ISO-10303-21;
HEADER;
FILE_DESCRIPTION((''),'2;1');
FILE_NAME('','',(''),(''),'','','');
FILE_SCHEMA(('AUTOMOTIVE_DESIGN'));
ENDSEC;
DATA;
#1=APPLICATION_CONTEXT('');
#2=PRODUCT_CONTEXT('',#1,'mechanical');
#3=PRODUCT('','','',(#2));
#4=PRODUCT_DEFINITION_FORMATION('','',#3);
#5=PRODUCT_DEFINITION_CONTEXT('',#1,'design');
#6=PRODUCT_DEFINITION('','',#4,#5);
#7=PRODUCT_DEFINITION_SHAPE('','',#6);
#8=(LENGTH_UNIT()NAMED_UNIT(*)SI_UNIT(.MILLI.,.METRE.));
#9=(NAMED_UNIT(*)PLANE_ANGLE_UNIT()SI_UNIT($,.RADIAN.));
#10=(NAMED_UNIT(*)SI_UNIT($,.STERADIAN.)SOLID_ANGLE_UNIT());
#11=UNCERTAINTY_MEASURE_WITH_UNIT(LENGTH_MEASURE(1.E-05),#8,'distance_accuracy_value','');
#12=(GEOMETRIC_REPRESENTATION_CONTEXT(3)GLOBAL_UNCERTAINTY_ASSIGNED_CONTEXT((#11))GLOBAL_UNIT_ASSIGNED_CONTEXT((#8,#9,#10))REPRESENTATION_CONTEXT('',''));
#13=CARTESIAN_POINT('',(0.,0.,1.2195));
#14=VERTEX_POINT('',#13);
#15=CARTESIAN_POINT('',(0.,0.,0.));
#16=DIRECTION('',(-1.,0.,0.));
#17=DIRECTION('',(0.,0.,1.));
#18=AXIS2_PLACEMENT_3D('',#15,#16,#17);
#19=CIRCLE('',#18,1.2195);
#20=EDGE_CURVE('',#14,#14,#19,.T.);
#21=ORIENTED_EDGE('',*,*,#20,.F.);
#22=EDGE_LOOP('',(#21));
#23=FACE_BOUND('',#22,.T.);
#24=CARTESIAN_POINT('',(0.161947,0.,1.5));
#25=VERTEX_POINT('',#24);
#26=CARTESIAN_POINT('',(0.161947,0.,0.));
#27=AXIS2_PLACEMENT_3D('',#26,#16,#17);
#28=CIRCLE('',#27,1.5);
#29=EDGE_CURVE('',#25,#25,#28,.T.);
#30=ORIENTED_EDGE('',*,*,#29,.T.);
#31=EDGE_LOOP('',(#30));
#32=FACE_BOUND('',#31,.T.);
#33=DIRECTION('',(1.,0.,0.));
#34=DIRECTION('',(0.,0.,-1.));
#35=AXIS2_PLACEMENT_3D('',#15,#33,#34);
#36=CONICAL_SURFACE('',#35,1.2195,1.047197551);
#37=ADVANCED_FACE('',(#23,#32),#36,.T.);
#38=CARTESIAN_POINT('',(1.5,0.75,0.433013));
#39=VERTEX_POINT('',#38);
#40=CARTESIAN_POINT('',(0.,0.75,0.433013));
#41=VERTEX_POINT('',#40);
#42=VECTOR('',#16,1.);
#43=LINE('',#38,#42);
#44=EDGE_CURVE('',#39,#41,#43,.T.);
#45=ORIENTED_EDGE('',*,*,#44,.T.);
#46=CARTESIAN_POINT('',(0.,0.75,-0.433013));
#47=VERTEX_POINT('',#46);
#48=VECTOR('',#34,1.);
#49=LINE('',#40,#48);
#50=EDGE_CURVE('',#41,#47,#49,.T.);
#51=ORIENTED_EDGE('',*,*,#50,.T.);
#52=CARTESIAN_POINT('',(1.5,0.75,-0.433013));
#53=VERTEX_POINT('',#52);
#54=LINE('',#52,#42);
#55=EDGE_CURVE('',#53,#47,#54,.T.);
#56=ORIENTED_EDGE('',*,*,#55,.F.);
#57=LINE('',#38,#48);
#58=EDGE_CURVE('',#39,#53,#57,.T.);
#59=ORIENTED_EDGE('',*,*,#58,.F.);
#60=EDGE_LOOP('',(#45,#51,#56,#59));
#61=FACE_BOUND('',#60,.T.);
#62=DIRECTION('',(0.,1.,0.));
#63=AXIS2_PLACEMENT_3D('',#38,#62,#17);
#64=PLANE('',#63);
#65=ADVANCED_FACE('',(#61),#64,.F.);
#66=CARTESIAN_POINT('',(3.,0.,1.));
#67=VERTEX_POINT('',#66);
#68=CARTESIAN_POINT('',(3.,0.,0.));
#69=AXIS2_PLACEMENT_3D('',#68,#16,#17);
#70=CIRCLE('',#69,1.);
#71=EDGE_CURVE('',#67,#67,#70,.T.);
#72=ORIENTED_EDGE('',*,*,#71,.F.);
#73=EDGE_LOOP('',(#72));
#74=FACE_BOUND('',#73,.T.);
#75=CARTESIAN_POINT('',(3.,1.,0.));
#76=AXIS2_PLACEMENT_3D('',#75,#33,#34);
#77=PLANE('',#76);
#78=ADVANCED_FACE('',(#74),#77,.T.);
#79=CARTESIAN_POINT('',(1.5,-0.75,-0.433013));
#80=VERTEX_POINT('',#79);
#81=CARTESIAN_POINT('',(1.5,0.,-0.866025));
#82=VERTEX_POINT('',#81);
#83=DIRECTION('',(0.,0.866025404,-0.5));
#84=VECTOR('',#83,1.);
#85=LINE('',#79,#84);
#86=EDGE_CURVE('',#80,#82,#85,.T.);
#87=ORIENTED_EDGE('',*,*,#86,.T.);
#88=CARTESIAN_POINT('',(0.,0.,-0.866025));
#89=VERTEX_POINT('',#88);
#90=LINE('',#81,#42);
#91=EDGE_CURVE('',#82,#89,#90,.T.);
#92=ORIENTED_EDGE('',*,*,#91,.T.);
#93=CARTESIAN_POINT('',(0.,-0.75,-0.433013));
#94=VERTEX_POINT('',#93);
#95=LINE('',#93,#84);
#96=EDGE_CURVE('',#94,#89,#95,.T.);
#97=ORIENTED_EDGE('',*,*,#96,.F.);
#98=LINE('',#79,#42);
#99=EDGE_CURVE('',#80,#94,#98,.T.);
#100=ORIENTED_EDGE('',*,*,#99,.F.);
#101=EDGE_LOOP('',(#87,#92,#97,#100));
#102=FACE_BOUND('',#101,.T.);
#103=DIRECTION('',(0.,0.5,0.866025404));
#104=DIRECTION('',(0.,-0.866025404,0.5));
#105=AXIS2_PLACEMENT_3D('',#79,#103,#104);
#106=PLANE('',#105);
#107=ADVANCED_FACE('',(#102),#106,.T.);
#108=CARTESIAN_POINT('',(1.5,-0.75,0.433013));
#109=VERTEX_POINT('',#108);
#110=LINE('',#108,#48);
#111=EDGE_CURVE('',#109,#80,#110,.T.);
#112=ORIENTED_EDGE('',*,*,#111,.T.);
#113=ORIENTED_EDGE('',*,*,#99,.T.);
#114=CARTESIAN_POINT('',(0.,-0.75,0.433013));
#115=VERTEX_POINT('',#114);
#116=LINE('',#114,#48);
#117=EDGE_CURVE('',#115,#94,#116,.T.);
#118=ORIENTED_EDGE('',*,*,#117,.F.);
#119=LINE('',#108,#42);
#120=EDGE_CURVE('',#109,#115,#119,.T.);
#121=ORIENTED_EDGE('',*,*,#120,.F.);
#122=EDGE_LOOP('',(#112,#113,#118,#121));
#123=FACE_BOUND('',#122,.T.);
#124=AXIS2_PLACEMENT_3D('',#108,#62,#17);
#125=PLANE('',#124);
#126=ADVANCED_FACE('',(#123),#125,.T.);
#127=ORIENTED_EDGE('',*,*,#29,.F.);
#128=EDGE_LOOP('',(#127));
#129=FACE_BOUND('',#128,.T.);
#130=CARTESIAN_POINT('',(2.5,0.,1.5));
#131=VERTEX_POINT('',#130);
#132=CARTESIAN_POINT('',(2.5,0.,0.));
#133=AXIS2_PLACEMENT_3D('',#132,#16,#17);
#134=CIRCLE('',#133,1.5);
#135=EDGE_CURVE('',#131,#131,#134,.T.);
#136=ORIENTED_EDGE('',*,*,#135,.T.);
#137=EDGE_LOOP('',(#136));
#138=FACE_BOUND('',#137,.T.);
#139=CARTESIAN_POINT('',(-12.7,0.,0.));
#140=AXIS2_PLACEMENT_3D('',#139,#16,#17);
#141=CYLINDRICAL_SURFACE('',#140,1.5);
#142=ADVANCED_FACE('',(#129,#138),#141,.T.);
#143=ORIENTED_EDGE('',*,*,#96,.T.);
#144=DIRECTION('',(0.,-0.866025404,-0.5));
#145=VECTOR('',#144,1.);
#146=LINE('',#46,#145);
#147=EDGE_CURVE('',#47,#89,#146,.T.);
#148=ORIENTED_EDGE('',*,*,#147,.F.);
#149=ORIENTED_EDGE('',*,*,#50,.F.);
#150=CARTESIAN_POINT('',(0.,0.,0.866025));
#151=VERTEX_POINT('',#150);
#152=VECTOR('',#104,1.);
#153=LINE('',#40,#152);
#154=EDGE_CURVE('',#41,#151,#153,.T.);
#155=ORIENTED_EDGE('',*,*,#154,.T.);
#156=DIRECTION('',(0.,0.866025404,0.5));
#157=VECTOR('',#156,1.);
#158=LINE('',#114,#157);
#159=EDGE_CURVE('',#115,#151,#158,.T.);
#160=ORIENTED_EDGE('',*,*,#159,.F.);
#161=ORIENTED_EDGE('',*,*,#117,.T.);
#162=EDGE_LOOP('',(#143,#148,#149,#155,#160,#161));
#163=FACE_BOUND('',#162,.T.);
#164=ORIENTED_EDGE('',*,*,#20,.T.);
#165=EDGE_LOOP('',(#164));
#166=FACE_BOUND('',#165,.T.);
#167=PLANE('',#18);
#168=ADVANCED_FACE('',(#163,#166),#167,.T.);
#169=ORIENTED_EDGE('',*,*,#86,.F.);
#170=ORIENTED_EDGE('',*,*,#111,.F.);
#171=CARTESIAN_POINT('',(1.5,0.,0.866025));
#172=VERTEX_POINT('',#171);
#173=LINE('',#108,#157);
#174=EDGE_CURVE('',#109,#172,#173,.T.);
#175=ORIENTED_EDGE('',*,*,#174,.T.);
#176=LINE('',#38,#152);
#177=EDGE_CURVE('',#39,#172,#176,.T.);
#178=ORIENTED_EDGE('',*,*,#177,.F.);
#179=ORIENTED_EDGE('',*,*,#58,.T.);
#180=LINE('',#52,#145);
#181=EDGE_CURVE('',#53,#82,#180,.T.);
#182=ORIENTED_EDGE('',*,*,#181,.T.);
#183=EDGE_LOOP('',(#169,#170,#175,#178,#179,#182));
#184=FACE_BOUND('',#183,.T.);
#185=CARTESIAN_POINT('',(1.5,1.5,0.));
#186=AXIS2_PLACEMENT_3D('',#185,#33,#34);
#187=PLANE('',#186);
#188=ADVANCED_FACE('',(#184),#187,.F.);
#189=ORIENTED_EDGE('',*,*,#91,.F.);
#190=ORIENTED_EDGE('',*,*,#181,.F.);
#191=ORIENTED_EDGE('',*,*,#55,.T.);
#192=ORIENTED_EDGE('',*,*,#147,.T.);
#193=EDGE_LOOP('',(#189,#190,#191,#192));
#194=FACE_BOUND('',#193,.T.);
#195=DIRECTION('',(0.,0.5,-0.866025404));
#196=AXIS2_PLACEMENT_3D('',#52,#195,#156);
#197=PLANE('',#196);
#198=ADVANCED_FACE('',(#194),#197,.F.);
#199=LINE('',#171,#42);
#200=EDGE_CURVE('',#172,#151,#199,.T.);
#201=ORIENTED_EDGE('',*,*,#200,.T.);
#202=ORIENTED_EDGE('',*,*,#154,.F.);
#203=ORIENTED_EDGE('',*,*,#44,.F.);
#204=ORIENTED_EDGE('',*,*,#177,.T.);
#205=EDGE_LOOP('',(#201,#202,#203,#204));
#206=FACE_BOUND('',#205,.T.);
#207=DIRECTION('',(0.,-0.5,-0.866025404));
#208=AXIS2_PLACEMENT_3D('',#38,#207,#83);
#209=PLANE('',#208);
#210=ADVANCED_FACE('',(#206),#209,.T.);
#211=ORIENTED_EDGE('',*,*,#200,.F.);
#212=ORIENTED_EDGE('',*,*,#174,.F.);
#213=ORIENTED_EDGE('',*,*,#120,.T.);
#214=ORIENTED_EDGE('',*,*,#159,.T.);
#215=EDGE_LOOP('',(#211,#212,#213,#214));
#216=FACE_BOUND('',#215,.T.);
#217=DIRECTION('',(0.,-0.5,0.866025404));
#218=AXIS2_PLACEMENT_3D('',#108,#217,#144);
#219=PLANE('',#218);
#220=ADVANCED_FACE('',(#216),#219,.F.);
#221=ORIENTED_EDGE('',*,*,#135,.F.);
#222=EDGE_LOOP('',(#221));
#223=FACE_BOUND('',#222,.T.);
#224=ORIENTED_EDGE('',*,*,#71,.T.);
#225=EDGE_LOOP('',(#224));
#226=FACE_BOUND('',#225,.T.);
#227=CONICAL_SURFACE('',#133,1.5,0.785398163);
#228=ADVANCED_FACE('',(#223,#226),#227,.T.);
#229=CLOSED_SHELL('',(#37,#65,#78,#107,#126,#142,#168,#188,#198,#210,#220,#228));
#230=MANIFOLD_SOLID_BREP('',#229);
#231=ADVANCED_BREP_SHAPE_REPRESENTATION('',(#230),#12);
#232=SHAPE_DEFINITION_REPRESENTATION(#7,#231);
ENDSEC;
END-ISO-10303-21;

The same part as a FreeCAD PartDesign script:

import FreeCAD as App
import Part
import Sketcher
from FreeCAD import Vector
Q = App.Units.Quantity


def add_polygon(sketch, points):
    """Adds a closed chain of lines whose ends are joined by coincident constraints."""
    first, n = sketch.GeometryCount, len(points)
    for a, b in zip(points, points[1:] + points[:1]):
        sketch.addGeometry(Part.LineSegment(App.Vector(*a, 0), App.Vector(*b, 0)), False)
    for i in range(n):
        sketch.addConstraint(Sketcher.Constraint("Coincident", first + i, 2, first + (i + 1) % n, 1))

doc = App.newDocument("Part")
body = doc.addObject("PartDesign::Body", "Body")

sketch1 = body.newObject("Sketcher::SketchObject", "Sketch")
sketch1.AttachmentSupport = (doc.getObject("XY_Plane"), [""])
sketch1.MapMode = "FlatFace"
add_polygon(sketch1, [(0, 1.22), (0, 0), (3, 0), (3, 1), (2.5, 1.5), (0.16, 1.5)])
sketch1.addConstraint([
    Sketcher.Constraint("Vertical", 0),
    Sketcher.Constraint("Horizontal", 1),
    Sketcher.Constraint("Vertical", 2),
    Sketcher.Constraint("Horizontal", 4),
    Sketcher.Constraint("Coincident", 0, 2, -1, 1),
    Sketcher.Constraint("DistanceX", 1, 1, 1, 2, 3.0),
    Sketcher.Constraint("DistanceY", 2, 1, 2, 2, 1.0),
    Sketcher.Constraint("Angle", 3, Q("135 deg")),
    Sketcher.Constraint("Angle", 5, Q("-120 deg")),
    Sketcher.Constraint("DistanceX", -1, 1, 3, 2, 2.5),
    Sketcher.Constraint("DistanceY", 0, 2, 0, 1, 1.2195),
])
revolution = body.newObject("PartDesign::Revolution", "Revolution")
revolution.Profile = sketch1
revolution.ReferenceAxis = (sketch1, ["H_Axis"])
revolution.Angle = 360

sketch2 = body.newObject("Sketcher::SketchObject", "Sketch001")
sketch2.AttachmentSupport = (doc.getObject("YZ_Plane"), [""])
sketch2.MapMode = "FlatFace"
add_polygon(sketch2, [(0.8, 0.4), (0.8, -0.4), (0, -0.9), (-0.8, -0.4), (-0.8, 0.4), (0, 0.9)])
sketch2.addConstraint([
    Sketcher.Constraint("Vertical", 0),
    Sketcher.Constraint("Vertical", 3),
    Sketcher.Constraint("Symmetric", 0, 2, 3, 2, -1, 1),
    Sketcher.Constraint("Symmetric", 1, 2, 4, 2, -1, 1),
    Sketcher.Constraint("PointOnObject", 1, 2, -2),
    Sketcher.Constraint("Parallel", 2, 5),
    Sketcher.Constraint("Horizontal", 0, 2, 2, 2),
    Sketcher.Constraint("Angle", 1, Q("-150 deg")),
    Sketcher.Constraint("DistanceX", 2, 2, 0, 2, 1.5),
    Sketcher.Constraint("DistanceY", 0, 2, 0, 1, 0.866025),
])
pocket1 = body.newObject("PartDesign::Pocket", "Pocket")
pocket1.Profile = sketch2
pocket1.Length = 1.5
pocket1.Reversed = True

doc.recompute()
